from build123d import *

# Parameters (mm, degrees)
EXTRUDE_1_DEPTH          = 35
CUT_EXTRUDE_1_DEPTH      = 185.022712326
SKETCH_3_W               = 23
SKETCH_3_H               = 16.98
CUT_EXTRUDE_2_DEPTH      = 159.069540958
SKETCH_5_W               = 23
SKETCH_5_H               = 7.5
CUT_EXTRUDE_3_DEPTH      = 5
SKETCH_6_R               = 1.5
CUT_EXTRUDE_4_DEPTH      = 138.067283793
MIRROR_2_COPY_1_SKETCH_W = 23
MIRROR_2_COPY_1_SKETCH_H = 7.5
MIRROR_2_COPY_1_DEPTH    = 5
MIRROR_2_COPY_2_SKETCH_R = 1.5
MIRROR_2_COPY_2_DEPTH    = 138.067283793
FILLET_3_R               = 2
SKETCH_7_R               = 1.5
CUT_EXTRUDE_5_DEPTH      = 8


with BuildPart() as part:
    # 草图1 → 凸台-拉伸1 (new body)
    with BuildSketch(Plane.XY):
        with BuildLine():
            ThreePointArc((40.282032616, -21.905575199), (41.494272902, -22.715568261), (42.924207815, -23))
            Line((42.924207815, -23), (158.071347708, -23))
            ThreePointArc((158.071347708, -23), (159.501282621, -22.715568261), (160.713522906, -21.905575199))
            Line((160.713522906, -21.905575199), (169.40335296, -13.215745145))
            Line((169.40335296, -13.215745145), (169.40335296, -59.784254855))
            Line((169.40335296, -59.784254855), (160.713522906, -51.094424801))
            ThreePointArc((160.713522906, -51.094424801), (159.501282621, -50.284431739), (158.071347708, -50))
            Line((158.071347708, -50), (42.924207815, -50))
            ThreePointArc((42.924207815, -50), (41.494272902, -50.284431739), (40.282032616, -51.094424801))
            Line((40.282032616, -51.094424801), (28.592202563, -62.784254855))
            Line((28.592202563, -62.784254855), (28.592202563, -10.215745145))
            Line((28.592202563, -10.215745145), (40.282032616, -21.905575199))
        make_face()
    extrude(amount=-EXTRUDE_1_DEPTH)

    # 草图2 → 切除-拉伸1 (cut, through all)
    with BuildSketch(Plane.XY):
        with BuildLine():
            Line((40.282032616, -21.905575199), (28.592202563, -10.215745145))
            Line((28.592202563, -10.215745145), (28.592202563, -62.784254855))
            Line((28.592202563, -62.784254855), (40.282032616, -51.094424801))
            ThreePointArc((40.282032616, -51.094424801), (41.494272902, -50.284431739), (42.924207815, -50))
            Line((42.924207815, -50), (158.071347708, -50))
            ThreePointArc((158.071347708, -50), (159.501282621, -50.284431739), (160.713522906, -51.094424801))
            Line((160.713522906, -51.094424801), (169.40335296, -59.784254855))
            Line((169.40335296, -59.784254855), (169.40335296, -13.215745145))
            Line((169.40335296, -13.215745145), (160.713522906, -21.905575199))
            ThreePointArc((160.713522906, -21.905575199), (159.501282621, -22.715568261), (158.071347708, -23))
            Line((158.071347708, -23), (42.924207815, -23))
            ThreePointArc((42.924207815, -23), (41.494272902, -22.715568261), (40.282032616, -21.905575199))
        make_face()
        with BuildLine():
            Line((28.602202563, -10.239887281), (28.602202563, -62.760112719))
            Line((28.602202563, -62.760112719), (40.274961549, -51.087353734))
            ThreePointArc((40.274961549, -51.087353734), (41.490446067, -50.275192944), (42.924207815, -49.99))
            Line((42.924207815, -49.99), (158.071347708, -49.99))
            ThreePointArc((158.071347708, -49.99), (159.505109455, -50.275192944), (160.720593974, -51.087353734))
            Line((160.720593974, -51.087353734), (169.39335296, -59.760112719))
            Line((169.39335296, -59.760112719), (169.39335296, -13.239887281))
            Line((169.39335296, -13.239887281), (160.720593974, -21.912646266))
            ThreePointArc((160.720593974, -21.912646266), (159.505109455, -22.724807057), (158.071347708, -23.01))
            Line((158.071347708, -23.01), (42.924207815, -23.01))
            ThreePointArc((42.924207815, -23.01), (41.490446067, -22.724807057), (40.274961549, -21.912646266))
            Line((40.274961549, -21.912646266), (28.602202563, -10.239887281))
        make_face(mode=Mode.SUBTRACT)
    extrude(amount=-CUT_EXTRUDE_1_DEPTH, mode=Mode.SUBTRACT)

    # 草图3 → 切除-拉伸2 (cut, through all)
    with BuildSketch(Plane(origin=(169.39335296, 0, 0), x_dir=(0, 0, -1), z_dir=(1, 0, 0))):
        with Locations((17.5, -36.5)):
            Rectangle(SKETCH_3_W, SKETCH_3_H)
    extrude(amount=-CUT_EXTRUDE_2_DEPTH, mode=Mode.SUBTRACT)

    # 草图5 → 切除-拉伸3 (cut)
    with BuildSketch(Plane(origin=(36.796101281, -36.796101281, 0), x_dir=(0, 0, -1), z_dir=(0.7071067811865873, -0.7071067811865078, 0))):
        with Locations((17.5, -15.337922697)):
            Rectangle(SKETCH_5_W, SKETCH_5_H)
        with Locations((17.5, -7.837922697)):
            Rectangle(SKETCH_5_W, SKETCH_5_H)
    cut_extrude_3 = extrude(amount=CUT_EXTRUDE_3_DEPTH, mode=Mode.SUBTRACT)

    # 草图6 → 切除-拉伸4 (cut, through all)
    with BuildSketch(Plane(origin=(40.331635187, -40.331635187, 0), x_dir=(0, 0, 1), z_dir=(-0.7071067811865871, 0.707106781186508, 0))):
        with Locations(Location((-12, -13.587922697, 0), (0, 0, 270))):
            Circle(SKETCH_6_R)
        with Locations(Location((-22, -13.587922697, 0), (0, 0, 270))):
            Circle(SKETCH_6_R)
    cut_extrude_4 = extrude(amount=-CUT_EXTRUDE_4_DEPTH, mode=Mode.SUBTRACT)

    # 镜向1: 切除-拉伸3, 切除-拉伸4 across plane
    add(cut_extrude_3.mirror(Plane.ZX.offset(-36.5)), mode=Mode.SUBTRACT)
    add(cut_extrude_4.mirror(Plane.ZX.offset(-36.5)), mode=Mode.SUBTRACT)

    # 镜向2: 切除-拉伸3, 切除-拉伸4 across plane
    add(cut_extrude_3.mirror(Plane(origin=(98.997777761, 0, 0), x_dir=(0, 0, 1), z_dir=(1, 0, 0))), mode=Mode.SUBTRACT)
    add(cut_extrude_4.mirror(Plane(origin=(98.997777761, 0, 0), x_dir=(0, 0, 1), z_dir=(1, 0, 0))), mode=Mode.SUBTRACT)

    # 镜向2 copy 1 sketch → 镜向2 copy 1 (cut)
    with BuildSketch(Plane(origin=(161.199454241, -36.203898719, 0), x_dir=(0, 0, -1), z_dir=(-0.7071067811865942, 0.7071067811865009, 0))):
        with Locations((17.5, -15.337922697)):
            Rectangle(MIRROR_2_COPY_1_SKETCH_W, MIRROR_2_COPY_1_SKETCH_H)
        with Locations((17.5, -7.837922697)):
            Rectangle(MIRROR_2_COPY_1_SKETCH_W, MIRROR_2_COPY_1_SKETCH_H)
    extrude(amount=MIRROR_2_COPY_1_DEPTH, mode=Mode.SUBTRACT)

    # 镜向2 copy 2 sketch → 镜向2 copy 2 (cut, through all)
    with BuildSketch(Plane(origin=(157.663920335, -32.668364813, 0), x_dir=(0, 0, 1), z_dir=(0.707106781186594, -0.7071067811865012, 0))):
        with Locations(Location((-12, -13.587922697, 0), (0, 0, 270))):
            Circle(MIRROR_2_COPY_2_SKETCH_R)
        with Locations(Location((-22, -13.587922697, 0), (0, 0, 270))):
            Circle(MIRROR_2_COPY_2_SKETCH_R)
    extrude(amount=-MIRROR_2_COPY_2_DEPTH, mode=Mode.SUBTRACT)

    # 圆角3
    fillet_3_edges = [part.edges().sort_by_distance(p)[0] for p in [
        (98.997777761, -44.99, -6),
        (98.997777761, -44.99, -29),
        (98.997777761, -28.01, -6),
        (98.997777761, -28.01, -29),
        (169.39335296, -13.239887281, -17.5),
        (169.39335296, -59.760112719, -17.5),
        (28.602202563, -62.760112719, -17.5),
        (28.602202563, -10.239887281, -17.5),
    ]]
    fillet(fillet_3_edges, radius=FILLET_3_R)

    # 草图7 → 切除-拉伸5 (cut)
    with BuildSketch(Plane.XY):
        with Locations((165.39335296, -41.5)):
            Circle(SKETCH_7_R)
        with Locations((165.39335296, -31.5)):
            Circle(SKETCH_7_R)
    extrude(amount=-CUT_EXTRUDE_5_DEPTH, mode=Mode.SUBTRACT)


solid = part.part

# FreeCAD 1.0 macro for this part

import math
import FreeCAD as App
import Part
import Sketcher


def edges_at(feature, points):
    """Names of the edges that pass closest to the given points."""
    edges = feature.Shape.Edges
    near = lambda p: min(range(len(edges)), key=lambda i: edges[i].distToShape(Part.Vertex(*p))[0])
    return sorted({f"Edge{near(p) + 1}" for p in points})


def add_polygon(sketch, points):
    """Adds a closed chain of lines whose ends are joined by coincident constraints."""
    first, n = sketch.GeometryCount, len(points)
    for a, b in zip(points, points[1:] + points[:1]):
        sketch.addGeometry(Part.LineSegment(App.Vector(*a, 0), App.Vector(*b, 0)), False)
    for i in range(n):
        sketch.addConstraint(Sketcher.Constraint("Coincident", first + i, 2, first + (i + 1) % n, 1))

doc = App.newDocument("Part")
params = doc.addObject("Spreadsheet::Sheet", "Params")
for row, (alias, value) in enumerate([
    ("pad1_length", "35 mm"),
    ("sketch3_height", "23 mm"),
    ("sketch3_width", "16.98 mm"),
    ("sketch4_width", "23 mm"),
    ("sketch4_height", "15 mm"),
    ("pocket3_length", "5 mm"),
    ("sketch5_diameter", "3 mm"),
    ("sketch6_width", "23 mm"),
    ("sketch6_height", "15 mm"),
    ("pocket5_length", "5 mm"),
    ("sketch7_diameter", "3 mm"),
    ("fillet_radius", "2 mm"),
    ("sketch8_diameter", "3 mm"),
    ("pocket7_length", "8 mm"),
], start=1):
    params.set(f"A{row}", alias)
    params.set(f"B{row}", "=" + value)
    params.setAlias(f"B{row}", alias)

body = doc.addObject("PartDesign::Body", "Body")

# Sketch on XY plane
sketch1 = body.newObject("Sketcher::SketchObject", "Sketch")
sketch1.AttachmentSupport = (doc.getObject("XY_Plane"), [""])
sketch1.MapMode = "FlatFace"
sketch1.addGeometry([
    Part.ArcOfCircle(Part.Circle(App.Vector(42.9, -19.3, 0), App.Vector(0, 0, 1), 3.7), math.radians(-135), math.radians(-90)),  # 0
    Part.LineSegment(App.Vector(40.3, -21.9, 0), App.Vector(28.6, -10.2, 0)),  # 1
    Part.LineSegment(App.Vector(28.6, -10.2, 0), App.Vector(28.6, -62.8, 0)),  # 2
    Part.LineSegment(App.Vector(28.6, -62.8, 0), App.Vector(40.3, -51.1, 0)),  # 3
    Part.ArcOfCircle(Part.Circle(App.Vector(42.9, -53.7, 0), App.Vector(0, 0, 1), 3.7), math.radians(90), math.radians(135)),  # 4
    Part.LineSegment(App.Vector(42.9, -50, 0), App.Vector(158.1, -50, 0)),  # 5
    Part.ArcOfCircle(Part.Circle(App.Vector(158.1, -53.7, 0), App.Vector(0, 0, 1), 3.7), math.radians(45), math.radians(90)),  # 6
    Part.LineSegment(App.Vector(160.7, -51.1, 0), App.Vector(169.4, -59.8, 0)),  # 7
    Part.LineSegment(App.Vector(169.4, -59.8, 0), App.Vector(169.4, -13.2, 0)),  # 8
    Part.LineSegment(App.Vector(169.4, -13.2, 0), App.Vector(160.7, -21.9, 0)),  # 9
    Part.ArcOfCircle(Part.Circle(App.Vector(158.1, -19.3, 0), App.Vector(0, 0, 1), 3.7), math.radians(-90), math.radians(-45)),  # 10
    Part.LineSegment(App.Vector(158.1, -23, 0), App.Vector(42.9, -23, 0)),  # 11
], False)
sketch1.addConstraint([
    Sketcher.Constraint("Tangent", 0, 1, 1, 1),
    Sketcher.Constraint("Coincident", 1, 2, 2, 1),
    Sketcher.Constraint("Coincident", 2, 2, 3, 1),
    Sketcher.Constraint("Tangent", 3, 2, 4, 2),
    Sketcher.Constraint("Tangent", 4, 1, 5, 1),
    Sketcher.Constraint("Tangent", 5, 2, 6, 2),
    Sketcher.Constraint("Tangent", 6, 1, 7, 1),
    Sketcher.Constraint("Coincident", 7, 2, 8, 1),
    Sketcher.Constraint("Coincident", 8, 2, 9, 1),
    Sketcher.Constraint("Tangent", 9, 2, 10, 2),
    Sketcher.Constraint("Tangent", 10, 1, 11, 1),
    Sketcher.Constraint("Tangent", 11, 2, 0, 2),
    Sketcher.Constraint("Vertical", 2),
    Sketcher.Constraint("Horizontal", 5),
    Sketcher.Constraint("Vertical", 8),
    Sketcher.Constraint("Horizontal", 11),
    Sketcher.Constraint("Equal", 0, 4),
    Sketcher.Constraint("Equal", 4, 6),
    Sketcher.Constraint("Equal", 6, 10),
    Sketcher.Constraint("Perpendicular", 1, 3),
    Sketcher.Constraint("Perpendicular", 3, 7),
    Sketcher.Constraint("Perpendicular", 7, 9),
    Sketcher.Constraint("Horizontal", 3, 2, 6, 1),
    Sketcher.Constraint("Vertical", 0, 3, 4, 3),
    Sketcher.Constraint("Vertical", 6, 3, 10, 3),
    Sketcher.Constraint("DistanceY", 4, 1, -1, 1, 50.0),
    Sketcher.Constraint("DistanceY", 10, 1, -1, 1, 23.0),
    Sketcher.Constraint("Radius", 0, 3.7366),
    Sketcher.Constraint("DistanceX", 5, 1, 5, 2, 115.14714),
    Sketcher.Constraint("DistanceY", 2, 2, 2, 1, 52.56851),
    Sketcher.Constraint("DistanceY", 8, 1, 8, 2, 46.56851),
    Sketcher.Constraint("DistanceX", -1, 1, 0, 3, 42.924208),
])
pad1 = body.newObject("PartDesign::Pad", "Pad")
pad1.Profile = sketch1
pad1.setExpression("Length", "Params.pad1_length")
pad1.Reversed = True

# Sketch on XY plane
sketch2 = body.newObject("Sketcher::SketchObject", "Sketch001")
sketch2.AttachmentSupport = (doc.getObject("XY_Plane"), [""])
sketch2.MapMode = "FlatFace"
sketch2.addGeometry([
    Part.LineSegment(App.Vector(40.3, -21.9, 0), App.Vector(28.6, -10.2, 0)),  # 0
    Part.LineSegment(App.Vector(28.6, -10.2, 0), App.Vector(28.6, -62.8, 0)),  # 1
    Part.LineSegment(App.Vector(28.6, -62.8, 0), App.Vector(40.3, -51.1, 0)),  # 2
    Part.ArcOfCircle(Part.Circle(App.Vector(42.9, -53.7, 0), App.Vector(0, 0, 1), 3.7), math.radians(90), math.radians(135)),  # 3
    Part.LineSegment(App.Vector(42.9, -50, 0), App.Vector(158.1, -50, 0)),  # 4
    Part.ArcOfCircle(Part.Circle(App.Vector(158.1, -53.7, 0), App.Vector(0, 0, 1), 3.7), math.radians(45), math.radians(90)),  # 5
    Part.LineSegment(App.Vector(160.7, -51.1, 0), App.Vector(169.4, -59.8, 0)),  # 6
    Part.LineSegment(App.Vector(169.4, -59.8, 0), App.Vector(169.4, -13.2, 0)),  # 7
    Part.LineSegment(App.Vector(169.4, -13.2, 0), App.Vector(160.7, -21.9, 0)),  # 8
    Part.ArcOfCircle(Part.Circle(App.Vector(158.1, -19.3, 0), App.Vector(0, 0, 1), 3.7), math.radians(-90), math.radians(-45)),  # 9
    Part.LineSegment(App.Vector(158.1, -23, 0), App.Vector(42.9, -23, 0)),  # 10
    Part.ArcOfCircle(Part.Circle(App.Vector(42.9, -19.3, 0), App.Vector(0, 0, 1), 3.7), math.radians(-135), math.radians(-90)),  # 11
    Part.LineSegment(App.Vector(28.6, -62.8, 0), App.Vector(28.6, -10.2, 0)),  # 12
    Part.LineSegment(App.Vector(28.6, -10.2, 0), App.Vector(40.3, -21.9, 0)),  # 13
    Part.ArcOfCircle(Part.Circle(App.Vector(42.9, -19.3, 0), App.Vector(0, 0, 1), 3.7), math.radians(-135), math.radians(-90)),  # 14
    Part.LineSegment(App.Vector(42.9, -23, 0), App.Vector(158.1, -23, 0)),  # 15
    Part.ArcOfCircle(Part.Circle(App.Vector(158.1, -19.3, 0), App.Vector(0, 0, 1), 3.7), math.radians(-90), math.radians(-45)),  # 16
    Part.LineSegment(App.Vector(160.7, -21.9, 0), App.Vector(169.4, -13.2, 0)),  # 17
    Part.LineSegment(App.Vector(169.4, -13.2, 0), App.Vector(169.4, -59.8, 0)),  # 18
    Part.LineSegment(App.Vector(169.4, -59.8, 0), App.Vector(160.7, -51.1, 0)),  # 19
    Part.ArcOfCircle(Part.Circle(App.Vector(158.1, -53.7, 0), App.Vector(0, 0, 1), 3.7), math.radians(45), math.radians(90)),  # 20
    Part.LineSegment(App.Vector(158.1, -50, 0), App.Vector(42.9, -50, 0)),  # 21
    Part.ArcOfCircle(Part.Circle(App.Vector(42.9, -53.7, 0), App.Vector(0, 0, 1), 3.7), math.radians(90), math.radians(135)),  # 22
    Part.LineSegment(App.Vector(40.3, -51.1, 0), App.Vector(28.6, -62.8, 0)),  # 23
], False)
sketch2.addConstraint([
    Sketcher.Constraint("Coincident", 0, 2, 1, 1),
    Sketcher.Constraint("Coincident", 1, 2, 2, 1),
    Sketcher.Constraint("Tangent", 2, 2, 3, 2),
    Sketcher.Constraint("Tangent", 3, 1, 4, 1),
    Sketcher.Constraint("Tangent", 4, 2, 5, 2),
    Sketcher.Constraint("Tangent", 5, 1, 6, 1),
    Sketcher.Constraint("Coincident", 6, 2, 7, 1),
    Sketcher.Constraint("Coincident", 7, 2, 8, 1),
    Sketcher.Constraint("Tangent", 8, 2, 9, 2),
    Sketcher.Constraint("Tangent", 9, 1, 10, 1),
    Sketcher.Constraint("Tangent", 10, 2, 11, 2),
    Sketcher.Constraint("Tangent", 11, 1, 0, 1),
    Sketcher.Constraint("Coincident", 12, 2, 13, 1),
    Sketcher.Constraint("Tangent", 13, 2, 14, 1),
    Sketcher.Constraint("Tangent", 14, 2, 15, 1),
    Sketcher.Constraint("Tangent", 15, 2, 16, 1),
    Sketcher.Constraint("Tangent", 16, 2, 17, 1),
    Sketcher.Constraint("Coincident", 17, 2, 18, 1),
    Sketcher.Constraint("Coincident", 18, 2, 19, 1),
    Sketcher.Constraint("Tangent", 19, 2, 20, 1),
    Sketcher.Constraint("Tangent", 20, 2, 21, 1),
    Sketcher.Constraint("Tangent", 21, 2, 22, 1),
    Sketcher.Constraint("Tangent", 22, 2, 23, 1),
    Sketcher.Constraint("Coincident", 23, 2, 12, 1),
    Sketcher.Constraint("Vertical", 1),
    Sketcher.Constraint("Horizontal", 4),
    Sketcher.Constraint("Vertical", 7),
    Sketcher.Constraint("Horizontal", 10),
    Sketcher.Constraint("Vertical", 12),
    Sketcher.Constraint("Horizontal", 15),
    Sketcher.Constraint("Vertical", 18),
    Sketcher.Constraint("Horizontal", 21),
    Sketcher.Constraint("Coincident", 14, 3, 11, 3),
    Sketcher.Constraint("Coincident", 16, 3, 9, 3),
    Sketcher.Constraint("Coincident", 20, 3, 5, 3),
    Sketcher.Constraint("Coincident", 22, 3, 3, 3),
    Sketcher.Constraint("Equal", 3, 5),
    Sketcher.Constraint("Equal", 5, 9),
    Sketcher.Constraint("Equal", 9, 11),
    Sketcher.Constraint("Equal", 16, 20),
    Sketcher.Constraint("Perpendicular", 0, 2),
    Sketcher.Constraint("Perpendicular", 2, 6),
    Sketcher.Constraint("Perpendicular", 6, 8),
    Sketcher.Constraint("Perpendicular", 8, 13),
    Sketcher.Constraint("Perpendicular", 13, 17),
    Sketcher.Constraint("Perpendicular", 17, 19),
    Sketcher.Constraint("Perpendicular", 19, 23),
    Sketcher.Constraint("Horizontal", 2, 2, 5, 1),
    Sketcher.Constraint("Vertical", 5, 3, 9, 3),
    Sketcher.Constraint("Vertical", 3, 3, 11, 3),
    Sketcher.Constraint("DistanceY", 3, 1, -1, 1, 50.0),
    Sketcher.Constraint("DistanceY", 9, 1, -1, 1, 23.0),
    Sketcher.Constraint("Radius", 3, 3.7366),
    Sketcher.Constraint("Radius", 14, 3.7466),
    Sketcher.Constraint("DistanceX", 0, 2, 12, 2, 0.01),
    Sketcher.Constraint("DistanceX", 17, 2, 7, 2, 0.01),
    Sketcher.Constraint("DistanceX", 4, 1, 4, 2, 115.14714),
    Sketcher.Constraint("DistanceY", 1, 2, 1, 1, 52.56851),
    Sketcher.Constraint("DistanceY", 7, 1, 7, 2, 46.56851),
    Sketcher.Constraint("DistanceX", -1, 1, 13, 2, 40.274962),
])
pocket1 = body.newObject("PartDesign::Pocket", "Pocket")
pocket1.Profile = sketch2
pocket1.Type = "ThroughAll"

# Sketch on YZ plane
sketch3 = body.newObject("Sketcher::SketchObject", "Sketch002")
sketch3.AttachmentSupport = (doc.getObject("YZ_Plane"), [""])
sketch3.MapMode = "FlatFace"
sketch3.AttachmentOffset = App.Placement(App.Vector(0, 0, 169.393353), App.Rotation())
add_polygon(sketch3, [(-28, -6), (-45, -6), (-45, -29), (-28, -29)])  # lines 0-3
sketch3.addConstraint([
    Sketcher.Constraint("Horizontal", 0),
    Sketcher.Constraint("Vertical", 1),
    Sketcher.Constraint("Horizontal", 2),
    Sketcher.Constraint("Vertical", 3),
    Sketcher.Constraint("DistanceY", 1, 2, 1, 1, 23.0),
    Sketcher.Constraint("DistanceY", 0, 2, -1, 1, 6.0),
    Sketcher.Constraint("DistanceX", 0, 2, 0, 1, 16.98),
    Sketcher.Constraint("DistanceX", 0, 2, -1, 1, 44.99),
])
sketch3.setExpression("Constraints[8]", "Params.sketch3_height")
sketch3.setExpression("Constraints[10]", "Params.sketch3_width")
pocket2 = body.newObject("PartDesign::Pocket", "Pocket001")
pocket2.Profile = sketch3
pocket2.Type = "ThroughAll"

# Sketch on an angled plane
sketch4 = body.newObject("Sketcher::SketchObject", "Sketch003")
sketch4.Placement = App.Placement(App.Vector(36.796101, -36.796101, 0), App.Rotation(App.Vector(0, 0, -1), App.Vector(0.707106781, 0.707106781, 0), App.Vector(0.707106781, -0.707106781, 0), "ZXY"))
add_polygon(sketch4, [(6, -19), (29, -19), (29, -4), (6, -4)])  # lines 0-3
sketch4.addConstraint([
    Sketcher.Constraint("Horizontal", 0),
    Sketcher.Constraint("Vertical", 1),
    Sketcher.Constraint("Horizontal", 2),
    Sketcher.Constraint("Vertical", 3),
    Sketcher.Constraint("DistanceX", 0, 1, 0, 2, 23.0),
    Sketcher.Constraint("DistanceY", 1, 1, 1, 2, 15.0),
    Sketcher.Constraint("DistanceX", -1, 1, 0, 2, 29.0),
    Sketcher.Constraint("DistanceY", 0, 2, -1, 1, 19.087923),
])
sketch4.setExpression("Constraints[8]", "Params.sketch4_width")
sketch4.setExpression("Constraints[9]", "Params.sketch4_height")
pocket3 = body.newObject("PartDesign::Pocket", "Pocket002")
pocket3.Profile = sketch4
pocket3.setExpression("Length", "Params.pocket3_length")
pocket3.Reversed = True

# Sketch on an angled plane
sketch5 = body.newObject("Sketcher::SketchObject", "Sketch004")
sketch5.Placement = App.Placement(App.Vector(40.331635, -40.331635, 0), App.Rotation(App.Vector(0, 0, 1), App.Vector(0.707106781, 0.707106781, 0), App.Vector(-0.707106781, 0.707106781, 0), "ZXY"))
sketch5.addGeometry([
    Part.Circle(App.Vector(-12, -13.6, 0), App.Vector(0, 0, 1), 1.5),
    Part.Circle(App.Vector(-22, -13.6, 0), App.Vector(0, 0, 1), 1.5),
], False)
sketch5.addConstraint([
    Sketcher.Constraint("Equal", 0, 1),
    Sketcher.Constraint("Horizontal", 0, 3, 1, 3),
    Sketcher.Constraint("Diameter", 0, 3.0),
    Sketcher.Constraint("DistanceX", 0, 3, -1, 1, 12.0),
    Sketcher.Constraint("DistanceX", 1, 3, -1, 1, 22.0),
    Sketcher.Constraint("DistanceY", 0, 3, -1, 1, 13.587923),
])
sketch5.setExpression("Constraints[2]", "Params.sketch5_diameter")
pocket4 = body.newObject("PartDesign::Pocket", "Pocket003")
pocket4.Profile = sketch5
pocket4.Type = "ThroughAll"
doc.recompute()

datumplane = body.newObject("PartDesign::Plane", "DatumPlane")
datumplane.AttachmentSupport = (doc.getObject("XZ_Plane"), [""])
datumplane.MapMode = "FlatFace"
datumplane.AttachmentOffset = App.Placement(App.Vector(0, 0, 36.5), App.Rotation())
mirrored = body.newObject("PartDesign::Mirrored", "Mirrored")
mirrored.Originals = [pocket3, pocket4]
mirrored.MirrorPlane = (datumplane, [""])
body.Tip = mirrored
doc.recompute()

datumplane2 = body.newObject("PartDesign::Plane", "DatumPlane001")
datumplane2.AttachmentSupport = (doc.getObject("YZ_Plane"), [""])
datumplane2.MapMode = "FlatFace"
datumplane2.AttachmentOffset = App.Placement(App.Vector(0, 0, 98.997778), App.Rotation())
mirrored2 = body.newObject("PartDesign::Mirrored", "Mirrored001")
mirrored2.Originals = [pocket3, pocket4]
mirrored2.MirrorPlane = (datumplane2, [""])
body.Tip = mirrored2

# Sketch on an angled plane
sketch6 = body.newObject("Sketcher::SketchObject", "Sketch005")
sketch6.Placement = App.Placement(App.Vector(161.199454, -36.203899, 0), App.Rotation(App.Vector(0, 0, -1), App.Vector(-0.707106781, -0.707106781, 0), App.Vector(-0.707106781, 0.707106781, 0), "ZXY"))
add_polygon(sketch6, [(6, -19), (29, -19), (29, -4), (6, -4)])  # lines 0-3
sketch6.addConstraint([
    Sketcher.Constraint("Horizontal", 0),
    Sketcher.Constraint("Vertical", 1),
    Sketcher.Constraint("Horizontal", 2),
    Sketcher.Constraint("Vertical", 3),
    Sketcher.Constraint("DistanceX", 0, 1, 0, 2, 23.0),
    Sketcher.Constraint("DistanceY", 1, 1, 1, 2, 15.0),
    Sketcher.Constraint("DistanceX", -1, 1, 0, 2, 29.0),
    Sketcher.Constraint("DistanceY", 0, 2, -1, 1, 19.087923),
])
sketch6.setExpression("Constraints[8]", "Params.sketch6_width")
sketch6.setExpression("Constraints[9]", "Params.sketch6_height")
pocket5 = body.newObject("PartDesign::Pocket", "Pocket004")
pocket5.Profile = sketch6
pocket5.setExpression("Length", "Params.pocket5_length")
pocket5.Reversed = True

# Sketch on an angled plane
sketch7 = body.newObject("Sketcher::SketchObject", "Sketch006")
sketch7.Placement = App.Placement(App.Vector(157.66392, -32.668365, 0), App.Rotation(App.Vector(0, 0, 1), App.Vector(-0.707106781, -0.707106781, 0), App.Vector(0.707106781, -0.707106781, 0), "ZXY"))
sketch7.addGeometry([
    Part.Circle(App.Vector(-12, -13.6, 0), App.Vector(0, 0, 1), 1.5),
    Part.Circle(App.Vector(-22, -13.6, 0), App.Vector(0, 0, 1), 1.5),
], False)
sketch7.addConstraint([
    Sketcher.Constraint("Equal", 0, 1),
    Sketcher.Constraint("Horizontal", 0, 3, 1, 3),
    Sketcher.Constraint("Diameter", 0, 3.0),
    Sketcher.Constraint("DistanceX", 0, 3, -1, 1, 12.0),
    Sketcher.Constraint("DistanceX", 1, 3, -1, 1, 22.0),
    Sketcher.Constraint("DistanceY", 0, 3, -1, 1, 13.587923),
])
sketch7.setExpression("Constraints[2]", "Params.sketch7_diameter")
pocket6 = body.newObject("PartDesign::Pocket", "Pocket005")
pocket6.Profile = sketch7
pocket6.Type = "ThroughAll"
doc.recompute()

fillet = body.newObject("PartDesign::Fillet", "Fillet")
fillet.Base = (pocket6, edges_at(pocket6, [
    (98.998, -44.99, -6),
    (98.998, -44.99, -29),
    (98.998, -28.01, -6),
    (98.998, -28.01, -29),
    (169.393, -13.24, -17.5),
    (169.393, -59.76, -17.5),
    (28.602, -62.76, -17.5),
    (28.602, -10.24, -17.5),
]))
fillet.setExpression("Radius", "Params.fillet_radius")

# Sketch on XY plane
sketch8 = body.newObject("Sketcher::SketchObject", "Sketch007")
sketch8.AttachmentSupport = (doc.getObject("XY_Plane"), [""])
sketch8.MapMode = "FlatFace"
sketch8.addGeometry([
    Part.Circle(App.Vector(165.4, -41.5, 0), App.Vector(0, 0, 1), 1.5),
    Part.Circle(App.Vector(165.4, -31.5, 0), App.Vector(0, 0, 1), 1.5),
], False)
sketch8.addConstraint([
    Sketcher.Constraint("Equal", 0, 1),
    Sketcher.Constraint("Vertical", 0, 3, 1, 3),
    Sketcher.Constraint("Diameter", 0, 3.0),
    Sketcher.Constraint("DistanceY", 0, 3, 1, 3, 10.0),
    Sketcher.Constraint("DistanceY", 0, 3, -1, 1, 41.5),
    Sketcher.Constraint("DistanceX", -1, 1, 0, 3, 165.393353),
])
sketch8.setExpression("Constraints[2]", "Params.sketch8_diameter")
pocket7 = body.newObject("PartDesign::Pocket", "Pocket006")
pocket7.Profile = sketch8
pocket7.setExpression("Length", "Params.pocket7_length")

doc.recompute()
